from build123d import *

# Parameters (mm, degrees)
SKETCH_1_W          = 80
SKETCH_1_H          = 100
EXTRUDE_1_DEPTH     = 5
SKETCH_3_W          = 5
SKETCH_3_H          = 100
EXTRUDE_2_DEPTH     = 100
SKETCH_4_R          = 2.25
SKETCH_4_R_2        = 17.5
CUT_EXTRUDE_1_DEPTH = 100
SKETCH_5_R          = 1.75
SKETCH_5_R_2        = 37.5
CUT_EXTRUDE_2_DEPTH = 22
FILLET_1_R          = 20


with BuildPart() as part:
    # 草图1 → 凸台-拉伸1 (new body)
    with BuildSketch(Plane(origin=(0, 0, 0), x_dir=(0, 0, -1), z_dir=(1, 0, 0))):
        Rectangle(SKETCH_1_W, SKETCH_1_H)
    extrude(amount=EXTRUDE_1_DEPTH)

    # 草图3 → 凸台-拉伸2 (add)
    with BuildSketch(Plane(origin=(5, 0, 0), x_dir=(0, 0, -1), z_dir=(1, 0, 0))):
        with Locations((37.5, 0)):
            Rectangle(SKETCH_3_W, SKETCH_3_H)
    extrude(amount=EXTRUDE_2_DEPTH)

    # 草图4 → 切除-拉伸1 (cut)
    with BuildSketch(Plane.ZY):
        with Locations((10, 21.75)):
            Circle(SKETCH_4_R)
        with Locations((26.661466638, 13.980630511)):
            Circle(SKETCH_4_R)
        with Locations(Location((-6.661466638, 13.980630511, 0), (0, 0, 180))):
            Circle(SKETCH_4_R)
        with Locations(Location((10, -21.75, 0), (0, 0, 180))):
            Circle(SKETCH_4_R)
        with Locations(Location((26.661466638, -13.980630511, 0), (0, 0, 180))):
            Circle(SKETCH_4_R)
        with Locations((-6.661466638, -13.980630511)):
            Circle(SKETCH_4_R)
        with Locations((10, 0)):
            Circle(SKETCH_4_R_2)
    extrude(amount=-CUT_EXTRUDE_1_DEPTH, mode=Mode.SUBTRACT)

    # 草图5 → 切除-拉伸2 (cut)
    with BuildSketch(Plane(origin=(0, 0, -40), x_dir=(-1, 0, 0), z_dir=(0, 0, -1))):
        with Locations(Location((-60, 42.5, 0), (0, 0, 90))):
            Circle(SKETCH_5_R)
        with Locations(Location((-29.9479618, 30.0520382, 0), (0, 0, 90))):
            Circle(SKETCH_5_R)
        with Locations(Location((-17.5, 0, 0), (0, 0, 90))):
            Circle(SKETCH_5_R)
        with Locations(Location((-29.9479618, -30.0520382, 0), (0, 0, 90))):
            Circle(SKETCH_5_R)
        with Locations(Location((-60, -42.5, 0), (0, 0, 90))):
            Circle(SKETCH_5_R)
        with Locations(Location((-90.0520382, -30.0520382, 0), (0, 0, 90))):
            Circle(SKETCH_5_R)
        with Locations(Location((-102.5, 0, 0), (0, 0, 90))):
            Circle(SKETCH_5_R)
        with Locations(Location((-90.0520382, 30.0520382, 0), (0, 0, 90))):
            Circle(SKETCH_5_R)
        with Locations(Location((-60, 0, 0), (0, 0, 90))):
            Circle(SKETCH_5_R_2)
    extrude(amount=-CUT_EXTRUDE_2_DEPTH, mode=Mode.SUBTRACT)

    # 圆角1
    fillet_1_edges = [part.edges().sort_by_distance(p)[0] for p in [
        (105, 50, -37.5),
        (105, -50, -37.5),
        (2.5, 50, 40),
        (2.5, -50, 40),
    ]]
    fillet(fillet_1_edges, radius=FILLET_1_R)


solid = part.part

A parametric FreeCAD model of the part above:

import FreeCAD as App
import Part
import Sketcher
from FreeCAD import Vector
Q = App.Units.Quantity


def edges_at(feature, points):
    """Names of the edges that pass closest to the given points."""
    edges = feature.Shape.Edges
    near = lambda p: min(range(len(edges)), key=lambda i: edges[i].distToShape(Part.Vertex(*p))[0])
    return sorted({f"Edge{near(p) + 1}" for p in points})

doc = App.newDocument("Part")
params = doc.addObject("Spreadsheet::Sheet", "Params")
for row, (alias, value) in enumerate([
    ("sketch1_width", "100 mm"),
    ("sketch1_height", "80 mm"),
    ("pad1_length", "5 mm"),
    ("sketch2_width", "100 mm"),
    ("sketch2_height", "5 mm"),
    ("pad2_length", "100 mm"),
    ("sketch3_diameter", "35 mm"),
    ("sketch3_diameter2", "4.5 mm"),
    ("pocket1_length", "100 mm"),
    ("sketch4_diameter", "75 mm"),
    ("sketch4_diameter2", "3.5 mm"),
    ("pocket2_length", "22 mm"),
    ("fillet_radius", "20 mm"),
], start=1):
    params.set(f"A{row}", alias)
    params.set(f"B{row}", "=" + value)
    params.setAlias(f"B{row}", alias)

body = doc.addObject("PartDesign::Body", "Body")

sketch1 = body.newObject("Sketcher::SketchObject", "Sketch")
sketch1.AttachmentSupport = (doc.getObject("YZ_Plane"), [""])
sketch1.MapMode = "FlatFace"
sketch1.addGeometry([
    Part.LineSegment(Vector(50, 40, 0), Vector(-50, 40, 0)),
    Part.LineSegment(Vector(-50, 40, 0), Vector(-50, -40, 0)),
    Part.LineSegment(Vector(-50, -40, 0), Vector(50, -40, 0)),
    Part.LineSegment(Vector(50, -40, 0), Vector(50, 40, 0)),
], False)
sketch1.addConstraint([
    Sketcher.Constraint("Coincident", 0, 2, 1, 1),
    Sketcher.Constraint("Coincident", 1, 2, 2, 1),
    Sketcher.Constraint("Coincident", 2, 2, 3, 1),
    Sketcher.Constraint("Coincident", 3, 2, 0, 1),
    Sketcher.Constraint("Horizontal", 0),
    Sketcher.Constraint("Vertical", 1),
    Sketcher.Constraint("Horizontal", 2),
    Sketcher.Constraint("Vertical", 3),
    Sketcher.Constraint("Symmetric", 0, 2, 2, 2, -1, 1),
    Sketcher.Constraint("DistanceX", 0, 2, 0, 1, Q("100 mm")),
    Sketcher.Constraint("DistanceY", 1, 2, 1, 1, Q("80 mm")),
])
sketch1.setExpression("Constraints[9]", "Params.sketch1_width")
sketch1.setExpression("Constraints[10]", "Params.sketch1_height")
pad1 = body.newObject("PartDesign::Pad", "Pad")
pad1.Profile = sketch1
pad1.setExpression("Length", "Params.pad1_length")

sketch2 = body.newObject("Sketcher::SketchObject", "Sketch001")
sketch2.AttachmentSupport = (doc.getObject("YZ_Plane"), [""])
sketch2.MapMode = "FlatFace"
sketch2.AttachmentOffset = App.Placement(Vector(0, 0, 5), App.Rotation())
sketch2.addGeometry([
    Part.LineSegment(Vector(50, -35, 0), Vector(-50, -35, 0)),
    Part.LineSegment(Vector(-50, -35, 0), Vector(-50, -40, 0)),
    Part.LineSegment(Vector(-50, -40, 0), Vector(50, -40, 0)),
    Part.LineSegment(Vector(50, -40, 0), Vector(50, -35, 0)),
], False)
sketch2.addConstraint([
    Sketcher.Constraint("Coincident", 0, 2, 1, 1),
    Sketcher.Constraint("Coincident", 1, 2, 2, 1),
    Sketcher.Constraint("Coincident", 2, 2, 3, 1),
    Sketcher.Constraint("Coincident", 3, 2, 0, 1),
    Sketcher.Constraint("Horizontal", 0),
    Sketcher.Constraint("Vertical", 1),
    Sketcher.Constraint("Horizontal", 2),
    Sketcher.Constraint("Vertical", 3),
    Sketcher.Constraint("DistanceX", 0, 2, 0, 1, Q("100 mm")),
    Sketcher.Constraint("DistanceY", 1, 2, 1, 1, Q("5 mm")),
    Sketcher.Constraint("DistanceX", 0, 2, -1, 1, Q("50 mm")),
    Sketcher.Constraint("DistanceY", 0, 2, -1, 1, Q("35 mm")),
])
sketch2.setExpression("Constraints[8]", "Params.sketch2_width")
sketch2.setExpression("Constraints[9]", "Params.sketch2_height")
pad2 = body.newObject("PartDesign::Pad", "Pad001")
pad2.Profile = sketch2
pad2.setExpression("Length", "Params.pad2_length")

sketch3 = body.newObject("Sketcher::SketchObject", "Sketch002")
sketch3.AttachmentSupport = (doc.getObject("YZ_Plane"), [""])
sketch3.MapMode = "FlatFace"
sketch3.addGeometry([
    Part.Circle(Vector(21.8, 10, 0), Vector(0, 0, 1), 2.2),
    Part.Circle(Vector(14, 26.7, 0), Vector(0, 0, 1), 2.2),
    Part.Circle(Vector(14, -6.7, 0), Vector(0, 0, 1), 2.2),
    Part.Circle(Vector(-21.8, 10, 0), Vector(0, 0, 1), 2.2),
    Part.Circle(Vector(-14, 26.7, 0), Vector(0, 0, 1), 2.2),
    Part.Circle(Vector(-14, -6.7, 0), Vector(0, 0, 1), 2.2),
    Part.Circle(Vector(0, 10, 0), Vector(0, 0, 1), 17.5),
], False)
sketch3.addConstraint([
    Sketcher.Constraint("Equal", 0, 1),
    Sketcher.Constraint("Equal", 1, 2),
    Sketcher.Constraint("Equal", 2, 3),
    Sketcher.Constraint("Equal", 3, 4),
    Sketcher.Constraint("Equal", 4, 5),
    Sketcher.Constraint("Symmetric", 0, 3, 3, 3, -2),
    Sketcher.Constraint("Symmetric", 1, 3, 4, 3, -2),
    Sketcher.Constraint("Symmetric", 2, 3, 5, 3, -2),
    Sketcher.Constraint("PointOnObject", 6, 3, -2),
    Sketcher.Constraint("Horizontal", 3, 3, 6, 3),
    Sketcher.Constraint("Vertical", 1, 3, 2, 3),
    Sketcher.Constraint("Diameter", 6, Q("35 mm")),
    Sketcher.Constraint("Diameter", 0, Q("4.5 mm")),
    Sketcher.Constraint("DistanceY", -1, 1, 0, 3, Q("10 mm")),
    Sketcher.Constraint("DistanceX", 3, 3, 0, 3, Q("43.5 mm")),
    Sketcher.Constraint("DistanceX", -1, 1, 1, 3, Q("13.980631 mm")),
    Sketcher.Constraint("DistanceY", -1, 1, 1, 3, Q("26.661467 mm")),
    Sketcher.Constraint("DistanceY", 2, 3, -1, 1, Q("6.661467 mm")),
])
sketch3.setExpression("Constraints[11]", "Params.sketch3_diameter")
sketch3.setExpression("Constraints[12]", "Params.sketch3_diameter2")
pocket1 = body.newObject("PartDesign::Pocket", "Pocket")
pocket1.Profile = sketch3
pocket1.setExpression("Length", "Params.pocket1_length")
pocket1.Reversed = True

sketch4 = body.newObject("Sketcher::SketchObject", "Sketch003")
sketch4.AttachmentSupport = (doc.getObject("XY_Plane"), [""])
sketch4.MapMode = "FlatFace"
sketch4.AttachmentOffset = App.Placement(Vector(0, 0, -40), App.Rotation())
sketch4.addGeometry([
    Part.Circle(Vector(60, 42.5, 0), Vector(0, 0, 1), 1.8),
    Part.Circle(Vector(29.9, 30.1, 0), Vector(0, 0, 1), 1.8),
    Part.Circle(Vector(17.5, 0, 0), Vector(0, 0, 1), 1.8),
    Part.Circle(Vector(29.9, -30.1, 0), Vector(0, 0, 1), 1.8),
    Part.Circle(Vector(60, -42.5, 0), Vector(0, 0, 1), 1.8),
    Part.Circle(Vector(90.1, -30.1, 0), Vector(0, 0, 1), 1.8),
    Part.Circle(Vector(102.5, 0, 0), Vector(0, 0, 1), 1.8),
    Part.Circle(Vector(90.1, 30.1, 0), Vector(0, 0, 1), 1.8),
    Part.Circle(Vector(60, 0, 0), Vector(0, 0, 1), 37.5),
], False)
sketch4.addConstraint([
    Sketcher.Constraint("Equal", 0, 1),
    Sketcher.Constraint("Equal", 1, 2),
    Sketcher.Constraint("Equal", 2, 3),
    Sketcher.Constraint("Equal", 3, 4),
    Sketcher.Constraint("Equal", 4, 5),
    Sketcher.Constraint("Equal", 5, 6),
    Sketcher.Constraint("Equal", 6, 7),
    Sketcher.Constraint("Symmetric", 1, 3, 3, 3, -1),
    Sketcher.Constraint("Symmetric", 0, 3, 4, 3, -1),
    Sketcher.Constraint("Symmetric", 5, 3, 7, 3, -1),
    Sketcher.Constraint("PointOnObject", 2, 3, -1),
    Sketcher.Constraint("PointOnObject", 6, 3, -1),
    Sketcher.Constraint("PointOnObject", 8, 3, -1),
    Sketcher.Constraint("Horizontal", 3, 3, 5, 3),
    Sketcher.Constraint("Vertical", 4, 3, 8, 3),
    Sketcher.Constraint("Diameter", 8, Q("75 mm")),
    Sketcher.Constraint("Diameter", 0, Q("3.5 mm")),
    Sketcher.Constraint("DistanceX", -1, 1, 0, 3, Q("60 mm")),
    Sketcher.Constraint("DistanceY", 4, 3, 0, 3, Q("85 mm")),
    Sketcher.Constraint("DistanceX", -1, 1, 2, 3, Q("17.5 mm")),
    Sketcher.Constraint("DistanceX", -1, 1, 6, 3, Q("102.5 mm")),
    Sketcher.Constraint("DistanceX", -1, 1, 1, 3, Q("29.947962 mm")),
    Sketcher.Constraint("DistanceY", -1, 1, 1, 3, Q("30.052038 mm")),
    Sketcher.Constraint("DistanceX", -1, 1, 5, 3, Q("90.052038 mm")),
])
sketch4.setExpression("Constraints[15]", "Params.sketch4_diameter")
sketch4.setExpression("Constraints[16]", "Params.sketch4_diameter2")
pocket2 = body.newObject("PartDesign::Pocket", "Pocket001")
pocket2.Profile = sketch4
pocket2.setExpression("Length", "Params.pocket2_length")
pocket2.Reversed = True
doc.recompute()

fillet = body.newObject("PartDesign::Fillet", "Fillet")
fillet.Base = (pocket2, edges_at(pocket2, [
    (105, 50, -37.5),
    (105, -50, -37.5),
    (2.5, 50, 40),
    (2.5, -50, 40),
]))
fillet.setExpression("Radius", "Params.fillet_radius")

doc.recompute()
